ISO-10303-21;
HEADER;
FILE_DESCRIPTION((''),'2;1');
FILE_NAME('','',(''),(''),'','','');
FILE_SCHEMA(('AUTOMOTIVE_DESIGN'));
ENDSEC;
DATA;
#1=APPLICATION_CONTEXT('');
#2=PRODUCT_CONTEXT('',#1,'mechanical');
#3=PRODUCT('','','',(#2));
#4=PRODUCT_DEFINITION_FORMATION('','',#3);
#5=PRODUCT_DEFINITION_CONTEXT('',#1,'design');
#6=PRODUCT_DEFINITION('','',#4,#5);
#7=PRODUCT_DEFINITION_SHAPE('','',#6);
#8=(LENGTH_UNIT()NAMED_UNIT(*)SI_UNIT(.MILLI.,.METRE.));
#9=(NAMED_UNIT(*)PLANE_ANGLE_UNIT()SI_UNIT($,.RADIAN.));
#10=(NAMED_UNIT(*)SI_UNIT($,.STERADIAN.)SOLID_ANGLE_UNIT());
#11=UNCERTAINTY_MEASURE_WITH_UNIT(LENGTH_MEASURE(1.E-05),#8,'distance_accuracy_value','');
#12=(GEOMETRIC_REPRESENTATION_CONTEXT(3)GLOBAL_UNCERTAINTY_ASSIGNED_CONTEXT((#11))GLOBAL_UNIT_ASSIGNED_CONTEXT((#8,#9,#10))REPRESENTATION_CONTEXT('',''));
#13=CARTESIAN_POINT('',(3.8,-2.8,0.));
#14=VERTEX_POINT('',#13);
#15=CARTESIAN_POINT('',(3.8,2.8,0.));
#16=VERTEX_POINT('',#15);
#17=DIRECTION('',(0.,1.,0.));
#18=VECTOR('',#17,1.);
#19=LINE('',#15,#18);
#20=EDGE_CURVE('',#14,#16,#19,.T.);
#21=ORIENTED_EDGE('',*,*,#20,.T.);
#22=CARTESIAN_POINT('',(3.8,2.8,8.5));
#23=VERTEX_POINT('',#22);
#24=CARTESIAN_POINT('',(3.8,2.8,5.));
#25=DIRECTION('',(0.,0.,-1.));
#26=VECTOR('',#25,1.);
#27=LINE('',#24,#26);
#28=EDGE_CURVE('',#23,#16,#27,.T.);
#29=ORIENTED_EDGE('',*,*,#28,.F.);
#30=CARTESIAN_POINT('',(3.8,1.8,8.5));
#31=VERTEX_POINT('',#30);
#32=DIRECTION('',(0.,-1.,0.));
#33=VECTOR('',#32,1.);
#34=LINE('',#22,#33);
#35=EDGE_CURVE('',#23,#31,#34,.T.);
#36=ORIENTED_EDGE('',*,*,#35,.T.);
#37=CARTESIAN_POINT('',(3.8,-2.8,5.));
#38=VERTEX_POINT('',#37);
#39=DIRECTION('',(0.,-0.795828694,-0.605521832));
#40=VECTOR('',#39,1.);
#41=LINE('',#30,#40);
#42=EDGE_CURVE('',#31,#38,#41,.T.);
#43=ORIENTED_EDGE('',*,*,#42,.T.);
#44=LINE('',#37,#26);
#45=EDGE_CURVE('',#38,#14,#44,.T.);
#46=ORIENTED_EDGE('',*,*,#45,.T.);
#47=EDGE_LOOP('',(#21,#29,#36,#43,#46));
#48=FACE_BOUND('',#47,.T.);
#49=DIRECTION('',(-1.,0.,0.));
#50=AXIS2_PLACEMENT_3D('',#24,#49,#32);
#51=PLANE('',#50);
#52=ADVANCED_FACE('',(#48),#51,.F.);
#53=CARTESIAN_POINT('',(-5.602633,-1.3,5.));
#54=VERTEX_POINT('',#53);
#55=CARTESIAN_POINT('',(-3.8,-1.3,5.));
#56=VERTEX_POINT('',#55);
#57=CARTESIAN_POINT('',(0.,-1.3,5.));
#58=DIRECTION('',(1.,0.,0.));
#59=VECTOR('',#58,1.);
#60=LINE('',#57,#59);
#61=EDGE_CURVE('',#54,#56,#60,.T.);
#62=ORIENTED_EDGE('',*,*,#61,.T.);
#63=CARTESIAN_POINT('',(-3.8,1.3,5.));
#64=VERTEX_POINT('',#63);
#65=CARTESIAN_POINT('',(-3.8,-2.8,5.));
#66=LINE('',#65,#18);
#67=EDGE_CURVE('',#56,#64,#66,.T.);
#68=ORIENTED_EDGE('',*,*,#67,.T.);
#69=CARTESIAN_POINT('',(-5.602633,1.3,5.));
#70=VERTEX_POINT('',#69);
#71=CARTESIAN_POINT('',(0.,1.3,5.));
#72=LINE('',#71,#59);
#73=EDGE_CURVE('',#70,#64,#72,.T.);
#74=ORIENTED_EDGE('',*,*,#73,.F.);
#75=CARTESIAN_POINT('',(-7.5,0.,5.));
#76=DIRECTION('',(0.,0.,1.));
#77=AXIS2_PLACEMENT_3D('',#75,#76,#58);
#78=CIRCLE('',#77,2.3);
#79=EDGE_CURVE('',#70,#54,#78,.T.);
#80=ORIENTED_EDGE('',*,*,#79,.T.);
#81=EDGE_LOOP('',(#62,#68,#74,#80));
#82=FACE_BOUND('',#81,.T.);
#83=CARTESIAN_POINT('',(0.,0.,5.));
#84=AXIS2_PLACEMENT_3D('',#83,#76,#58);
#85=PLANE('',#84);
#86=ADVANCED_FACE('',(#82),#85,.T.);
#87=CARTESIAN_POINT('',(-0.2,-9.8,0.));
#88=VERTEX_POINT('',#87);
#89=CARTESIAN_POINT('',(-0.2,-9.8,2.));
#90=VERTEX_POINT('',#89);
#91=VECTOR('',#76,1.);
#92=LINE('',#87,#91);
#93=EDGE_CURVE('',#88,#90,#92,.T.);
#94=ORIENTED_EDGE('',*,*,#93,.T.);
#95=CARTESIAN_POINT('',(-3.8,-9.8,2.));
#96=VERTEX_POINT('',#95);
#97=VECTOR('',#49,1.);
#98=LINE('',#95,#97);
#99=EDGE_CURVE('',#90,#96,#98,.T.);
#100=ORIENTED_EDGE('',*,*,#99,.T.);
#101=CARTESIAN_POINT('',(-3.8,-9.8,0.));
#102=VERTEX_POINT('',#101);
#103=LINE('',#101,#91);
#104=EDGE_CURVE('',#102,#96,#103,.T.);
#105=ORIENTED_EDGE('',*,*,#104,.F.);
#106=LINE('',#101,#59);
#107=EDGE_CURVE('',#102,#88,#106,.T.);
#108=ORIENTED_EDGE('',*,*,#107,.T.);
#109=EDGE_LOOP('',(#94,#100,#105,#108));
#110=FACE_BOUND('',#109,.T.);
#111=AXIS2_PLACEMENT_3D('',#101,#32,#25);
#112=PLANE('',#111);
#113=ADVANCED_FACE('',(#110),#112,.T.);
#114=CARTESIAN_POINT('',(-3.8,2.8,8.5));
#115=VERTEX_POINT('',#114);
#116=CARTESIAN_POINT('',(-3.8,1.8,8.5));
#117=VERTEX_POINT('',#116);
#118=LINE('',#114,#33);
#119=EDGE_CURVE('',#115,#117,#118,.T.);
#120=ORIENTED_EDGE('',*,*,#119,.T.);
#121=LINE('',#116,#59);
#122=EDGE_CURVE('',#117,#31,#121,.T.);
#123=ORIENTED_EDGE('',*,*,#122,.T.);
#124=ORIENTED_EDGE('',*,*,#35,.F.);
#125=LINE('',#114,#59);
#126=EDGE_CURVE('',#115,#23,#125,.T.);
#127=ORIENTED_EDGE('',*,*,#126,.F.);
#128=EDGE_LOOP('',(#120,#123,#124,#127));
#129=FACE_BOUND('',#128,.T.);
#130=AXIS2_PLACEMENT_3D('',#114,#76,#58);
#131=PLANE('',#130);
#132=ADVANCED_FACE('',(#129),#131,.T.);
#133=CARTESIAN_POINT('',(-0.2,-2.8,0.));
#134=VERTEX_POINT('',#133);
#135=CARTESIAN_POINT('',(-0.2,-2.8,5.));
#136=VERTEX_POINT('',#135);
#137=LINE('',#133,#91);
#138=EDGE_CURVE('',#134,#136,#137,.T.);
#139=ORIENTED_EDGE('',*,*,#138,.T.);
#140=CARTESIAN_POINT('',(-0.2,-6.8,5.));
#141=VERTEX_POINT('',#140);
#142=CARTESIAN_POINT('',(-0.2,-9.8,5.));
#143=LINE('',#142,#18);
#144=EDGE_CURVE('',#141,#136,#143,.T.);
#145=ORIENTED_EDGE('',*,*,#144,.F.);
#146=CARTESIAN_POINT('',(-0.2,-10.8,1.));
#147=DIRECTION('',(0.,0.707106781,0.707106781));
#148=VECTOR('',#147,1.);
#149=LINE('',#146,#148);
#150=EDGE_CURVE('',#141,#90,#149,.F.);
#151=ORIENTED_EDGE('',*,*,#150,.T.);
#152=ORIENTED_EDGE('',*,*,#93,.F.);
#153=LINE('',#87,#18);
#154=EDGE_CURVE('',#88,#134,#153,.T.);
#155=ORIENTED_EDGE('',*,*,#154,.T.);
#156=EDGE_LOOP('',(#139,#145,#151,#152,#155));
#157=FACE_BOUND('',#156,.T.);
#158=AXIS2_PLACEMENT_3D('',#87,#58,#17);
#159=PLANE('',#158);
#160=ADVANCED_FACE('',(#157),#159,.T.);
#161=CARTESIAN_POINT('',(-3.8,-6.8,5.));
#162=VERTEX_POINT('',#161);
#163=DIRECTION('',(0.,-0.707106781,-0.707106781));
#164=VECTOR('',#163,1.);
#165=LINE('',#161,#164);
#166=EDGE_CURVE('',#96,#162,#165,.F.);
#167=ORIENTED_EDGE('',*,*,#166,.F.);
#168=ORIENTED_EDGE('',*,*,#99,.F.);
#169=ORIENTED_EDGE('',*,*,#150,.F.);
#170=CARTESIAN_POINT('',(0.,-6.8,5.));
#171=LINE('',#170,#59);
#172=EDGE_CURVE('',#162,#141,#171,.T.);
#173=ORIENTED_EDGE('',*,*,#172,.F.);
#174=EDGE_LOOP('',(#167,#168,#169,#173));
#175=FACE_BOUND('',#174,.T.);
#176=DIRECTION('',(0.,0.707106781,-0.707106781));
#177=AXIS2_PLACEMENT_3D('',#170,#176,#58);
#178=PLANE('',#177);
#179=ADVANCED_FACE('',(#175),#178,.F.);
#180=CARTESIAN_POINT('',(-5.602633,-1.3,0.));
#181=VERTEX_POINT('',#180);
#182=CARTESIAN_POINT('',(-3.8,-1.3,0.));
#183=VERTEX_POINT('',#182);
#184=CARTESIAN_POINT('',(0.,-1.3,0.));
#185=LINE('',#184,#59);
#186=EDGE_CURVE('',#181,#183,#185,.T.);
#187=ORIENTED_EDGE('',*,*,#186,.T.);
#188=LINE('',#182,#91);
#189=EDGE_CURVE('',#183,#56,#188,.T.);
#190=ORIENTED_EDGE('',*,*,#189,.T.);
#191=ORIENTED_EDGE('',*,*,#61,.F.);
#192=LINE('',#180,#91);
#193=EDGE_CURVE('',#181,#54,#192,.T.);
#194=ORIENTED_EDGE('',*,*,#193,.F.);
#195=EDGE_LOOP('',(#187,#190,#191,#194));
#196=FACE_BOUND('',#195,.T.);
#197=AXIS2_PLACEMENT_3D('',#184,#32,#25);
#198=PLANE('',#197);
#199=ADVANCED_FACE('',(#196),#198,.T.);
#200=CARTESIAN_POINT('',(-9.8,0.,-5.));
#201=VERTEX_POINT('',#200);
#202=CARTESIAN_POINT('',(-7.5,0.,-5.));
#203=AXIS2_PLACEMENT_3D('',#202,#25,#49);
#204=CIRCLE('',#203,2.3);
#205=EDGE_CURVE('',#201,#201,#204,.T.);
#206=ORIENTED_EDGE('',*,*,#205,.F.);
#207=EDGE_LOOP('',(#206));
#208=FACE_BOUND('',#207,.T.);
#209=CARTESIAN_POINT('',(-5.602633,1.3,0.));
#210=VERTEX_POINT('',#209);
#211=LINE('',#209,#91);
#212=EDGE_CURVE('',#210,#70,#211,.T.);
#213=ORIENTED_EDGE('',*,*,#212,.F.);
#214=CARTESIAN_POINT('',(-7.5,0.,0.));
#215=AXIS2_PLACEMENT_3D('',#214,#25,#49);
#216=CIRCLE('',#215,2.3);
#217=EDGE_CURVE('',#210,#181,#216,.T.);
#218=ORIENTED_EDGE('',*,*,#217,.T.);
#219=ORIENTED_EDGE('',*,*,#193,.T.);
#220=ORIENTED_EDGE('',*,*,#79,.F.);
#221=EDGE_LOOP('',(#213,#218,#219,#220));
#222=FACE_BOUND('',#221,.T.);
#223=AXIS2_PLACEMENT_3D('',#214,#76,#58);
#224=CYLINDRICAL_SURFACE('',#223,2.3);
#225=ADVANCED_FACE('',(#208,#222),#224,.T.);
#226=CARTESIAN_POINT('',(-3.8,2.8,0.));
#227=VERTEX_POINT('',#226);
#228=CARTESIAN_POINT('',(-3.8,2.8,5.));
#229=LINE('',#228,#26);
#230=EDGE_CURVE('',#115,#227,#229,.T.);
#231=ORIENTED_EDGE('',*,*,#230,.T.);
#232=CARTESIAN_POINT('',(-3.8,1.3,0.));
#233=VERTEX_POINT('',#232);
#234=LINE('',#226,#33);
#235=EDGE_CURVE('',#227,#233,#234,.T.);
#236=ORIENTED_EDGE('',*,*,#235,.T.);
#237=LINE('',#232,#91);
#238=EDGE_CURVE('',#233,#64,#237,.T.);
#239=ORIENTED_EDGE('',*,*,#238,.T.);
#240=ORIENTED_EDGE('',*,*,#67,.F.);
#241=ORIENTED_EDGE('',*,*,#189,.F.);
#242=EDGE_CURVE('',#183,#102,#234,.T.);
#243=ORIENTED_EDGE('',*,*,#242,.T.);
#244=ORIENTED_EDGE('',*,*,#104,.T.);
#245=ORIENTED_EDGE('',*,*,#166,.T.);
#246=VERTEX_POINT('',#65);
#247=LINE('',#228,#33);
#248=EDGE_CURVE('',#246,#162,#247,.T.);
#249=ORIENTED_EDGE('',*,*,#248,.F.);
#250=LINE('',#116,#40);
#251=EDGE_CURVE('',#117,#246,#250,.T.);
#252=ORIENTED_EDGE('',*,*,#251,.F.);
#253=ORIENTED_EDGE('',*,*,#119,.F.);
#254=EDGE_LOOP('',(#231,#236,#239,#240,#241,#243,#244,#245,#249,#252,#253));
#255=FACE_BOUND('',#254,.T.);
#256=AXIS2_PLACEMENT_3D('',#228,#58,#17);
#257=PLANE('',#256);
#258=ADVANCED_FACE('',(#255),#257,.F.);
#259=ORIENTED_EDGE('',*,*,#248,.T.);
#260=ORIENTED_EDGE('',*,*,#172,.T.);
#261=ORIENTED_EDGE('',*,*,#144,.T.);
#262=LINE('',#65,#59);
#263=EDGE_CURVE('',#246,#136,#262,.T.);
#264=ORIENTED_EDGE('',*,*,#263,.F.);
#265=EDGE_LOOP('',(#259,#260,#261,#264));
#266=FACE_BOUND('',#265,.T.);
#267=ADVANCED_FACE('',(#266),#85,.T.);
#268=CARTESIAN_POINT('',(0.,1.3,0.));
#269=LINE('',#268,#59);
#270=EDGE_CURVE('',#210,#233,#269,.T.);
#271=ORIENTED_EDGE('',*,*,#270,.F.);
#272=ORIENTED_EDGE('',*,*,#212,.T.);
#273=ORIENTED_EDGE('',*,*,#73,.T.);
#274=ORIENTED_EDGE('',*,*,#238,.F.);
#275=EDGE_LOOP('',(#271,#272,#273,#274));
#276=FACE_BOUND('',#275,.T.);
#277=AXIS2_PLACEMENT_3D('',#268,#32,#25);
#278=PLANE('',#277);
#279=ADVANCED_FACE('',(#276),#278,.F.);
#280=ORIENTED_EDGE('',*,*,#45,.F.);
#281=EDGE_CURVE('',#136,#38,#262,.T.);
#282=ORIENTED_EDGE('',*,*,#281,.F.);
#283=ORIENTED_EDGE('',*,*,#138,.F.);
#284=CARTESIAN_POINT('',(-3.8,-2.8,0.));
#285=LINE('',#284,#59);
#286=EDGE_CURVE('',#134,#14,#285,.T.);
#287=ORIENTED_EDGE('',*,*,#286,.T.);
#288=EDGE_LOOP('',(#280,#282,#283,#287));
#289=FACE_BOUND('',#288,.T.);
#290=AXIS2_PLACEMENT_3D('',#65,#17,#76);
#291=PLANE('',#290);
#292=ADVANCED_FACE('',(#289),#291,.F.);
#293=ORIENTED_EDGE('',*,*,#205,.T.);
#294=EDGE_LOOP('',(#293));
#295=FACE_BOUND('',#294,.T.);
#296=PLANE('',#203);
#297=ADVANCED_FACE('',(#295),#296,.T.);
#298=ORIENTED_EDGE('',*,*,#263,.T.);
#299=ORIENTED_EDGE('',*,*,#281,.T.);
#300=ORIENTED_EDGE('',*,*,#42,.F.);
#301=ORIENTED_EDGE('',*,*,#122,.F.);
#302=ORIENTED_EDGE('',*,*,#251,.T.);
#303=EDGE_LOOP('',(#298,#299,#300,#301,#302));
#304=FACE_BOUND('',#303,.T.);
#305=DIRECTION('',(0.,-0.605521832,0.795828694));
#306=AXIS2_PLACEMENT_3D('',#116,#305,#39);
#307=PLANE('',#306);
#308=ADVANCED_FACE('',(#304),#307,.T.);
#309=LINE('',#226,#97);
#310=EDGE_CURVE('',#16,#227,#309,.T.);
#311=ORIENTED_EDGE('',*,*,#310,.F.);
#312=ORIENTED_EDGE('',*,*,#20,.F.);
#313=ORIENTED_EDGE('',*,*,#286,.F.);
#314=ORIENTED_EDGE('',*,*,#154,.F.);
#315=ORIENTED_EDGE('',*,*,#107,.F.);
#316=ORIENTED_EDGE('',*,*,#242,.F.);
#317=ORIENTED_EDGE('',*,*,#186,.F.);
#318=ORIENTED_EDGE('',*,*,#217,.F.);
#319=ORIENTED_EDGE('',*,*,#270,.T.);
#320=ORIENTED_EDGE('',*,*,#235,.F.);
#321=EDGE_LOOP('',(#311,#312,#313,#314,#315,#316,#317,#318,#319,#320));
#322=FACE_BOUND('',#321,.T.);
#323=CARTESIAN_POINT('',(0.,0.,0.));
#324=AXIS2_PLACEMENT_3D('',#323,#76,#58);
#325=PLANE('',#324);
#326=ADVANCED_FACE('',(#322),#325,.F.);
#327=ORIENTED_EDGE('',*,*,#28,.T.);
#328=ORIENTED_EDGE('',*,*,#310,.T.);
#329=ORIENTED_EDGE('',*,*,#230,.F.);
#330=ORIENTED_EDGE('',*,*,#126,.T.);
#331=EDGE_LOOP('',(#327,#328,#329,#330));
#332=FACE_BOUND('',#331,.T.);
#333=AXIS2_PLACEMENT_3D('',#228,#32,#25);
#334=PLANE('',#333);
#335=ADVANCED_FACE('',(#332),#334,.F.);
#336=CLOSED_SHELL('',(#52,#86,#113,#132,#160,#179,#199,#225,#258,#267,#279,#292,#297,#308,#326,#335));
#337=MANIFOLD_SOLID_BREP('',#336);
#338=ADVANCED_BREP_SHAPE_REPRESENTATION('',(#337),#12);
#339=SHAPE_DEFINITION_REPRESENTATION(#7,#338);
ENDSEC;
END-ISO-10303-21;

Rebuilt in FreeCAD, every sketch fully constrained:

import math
import FreeCAD as App
import Part
import Sketcher

V = App.Vector
Q = App.Units.Quantity


def edges_at(feature, points):
    """Names of the edges that pass closest to the given points."""
    edges = feature.Shape.Edges
    near = lambda p: min(range(len(edges)), key=lambda i: edges[i].distToShape(Part.Vertex(*p))[0])
    return sorted({f"Edge{near(p) + 1}" for p in points})


def add_polygon(sketch, points):
    """Adds a closed chain of lines whose ends are joined by coincident constraints."""
    first, n = sketch.GeometryCount, len(points)
    for a, b in zip(points, points[1:] + points[:1]):
        sketch.addGeometry(Part.LineSegment(App.Vector(*a, 0), App.Vector(*b, 0)), False)
    for i in range(n):
        sketch.addConstraint(Sketcher.Constraint("Coincident", first + i, 2, first + (i + 1) % n, 1))

doc = App.newDocument("Part")
body = doc.addObject("PartDesign::Body", "Body")

# Sketch on XY plane
sketch1 = doc.addObject("Sketcher::SketchObject", "Sketch")
body.addObject(sketch1)
sketch1.AttachmentSupport = (doc.XY_Plane, [""])
sketch1.MapMode = "FlatFace"
add_polygon(sketch1, [(-4, 3), (-4, -3), (4, -3), (4, 3)])  # lines 0-3
sketch1.addConstraint(Sketcher.Constraint("Vertical", 0))
sketch1.addConstraint(Sketcher.Constraint("Horizontal", 1))
sketch1.addConstraint(Sketcher.Constraint("Vertical", 2))
sketch1.addConstraint(Sketcher.Constraint("Horizontal", 3))
sketch1.addConstraint(Sketcher.Constraint("Symmetric", 0, 2, 2, 2, -1, 1))
sketch1.addConstraint(Sketcher.Constraint("DistanceX", 1, 1, 1, 2, Q("7.6 mm")))
sketch1.addConstraint(Sketcher.Constraint("DistanceY", 0, 2, 0, 1, Q("5.6 mm")))
pad1 = doc.addObject("PartDesign::Pad", "Pad")
body.addObject(pad1)
pad1.Profile = sketch1
pad1.Length = 5

# Sketch on XY plane
sketch2 = doc.addObject("Sketcher::SketchObject", "Sketch001")
body.addObject(sketch2)
sketch2.AttachmentSupport = (doc.XY_Plane, [""])
sketch2.MapMode = "FlatFace"
sketch2.AttachmentOffset = App.Placement(V(0, 0, 5), App.Rotation())
sketch2.addGeometry(Part.ArcOfCircle(Part.Circle(V(-7.5, 0, 0), V(0, 0, 1), 2.3), math.radians(34), math.radians(326)), False)
sketch2.addGeometry(Part.LineSegment(V(-5.6, -1.3, 0), V(-3.8, -1.3, 0)), False)
sketch2.addGeometry(Part.LineSegment(V(-3.8, -1.3, 0), V(-3.8, 1.3, 0)), False)
sketch2.addGeometry(Part.LineSegment(V(-3.8, 1.3, 0), V(-5.6, 1.3, 0)), False)
sketch2.addConstraint(Sketcher.Constraint("Coincident", 0, 2, 1, 1))
sketch2.addConstraint(Sketcher.Constraint("Coincident", 1, 2, 2, 1))
sketch2.addConstraint(Sketcher.Constraint("Coincident", 2, 2, 3, 1))
sketch2.addConstraint(Sketcher.Constraint("Coincident", 3, 2, 0, 1))
sketch2.addConstraint(Sketcher.Constraint("Horizontal", 1))
sketch2.addConstraint(Sketcher.Constraint("Vertical", 2))
sketch2.addConstraint(Sketcher.Constraint("Horizontal", 3))
sketch2.addConstraint(Sketcher.Constraint("Symmetric", 0, 2, 3, 2, -1))
sketch2.addConstraint(Sketcher.Constraint("Radius", 0, Q("2.3 mm")))
sketch2.addConstraint(Sketcher.Constraint("DistanceY", 2, 1, 2, 2, Q("2.6 mm")))
sketch2.addConstraint(Sketcher.Constraint("DistanceX", 0, 3, -1, 1, Q("7.5 mm")))
sketch2.addConstraint(Sketcher.Constraint("DistanceX", 1, 2, -1, 1, Q("3.8 mm")))
pad2 = doc.addObject("PartDesign::Pad", "Pad001")
body.addObject(pad2)
pad2.Profile = sketch2
pad2.Length = 5
pad2.Reversed = True

# Sketch on XY plane
sketch3 = doc.addObject("Sketcher::SketchObject", "Sketch002")
body.addObject(sketch3)
sketch3.AttachmentSupport = (doc.XY_Plane, [""])
sketch3.MapMode = "FlatFace"
sketch3.AttachmentOffset = App.Placement(V(0, 0, 5), App.Rotation())
add_polygon(sketch3, [(-3.8, -2.8), (-3.8, -9.8), (-0.2, -9.8), (-0.2, -2.8)])  # lines 0-3
sketch3.addConstraint(Sketcher.Constraint("Vertical", 0))
sketch3.addConstraint(Sketcher.Constraint("Horizontal", 1))
sketch3.addConstraint(Sketcher.Constraint("Vertical", 2))
sketch3.addConstraint(Sketcher.Constraint("Horizontal", 3))
sketch3.addConstraint(Sketcher.Constraint("DistanceY", 0, 2, 0, 1, Q("7 mm")))
sketch3.addConstraint(Sketcher.Constraint("DistanceX", 1, 1, 1, 2, Q("3.6 mm")))
sketch3.addConstraint(Sketcher.Constraint("DistanceX", 0, 2, -1, 1, Q("3.8 mm")))
sketch3.addConstraint(Sketcher.Constraint("DistanceY", 0, 2, -1, 1, Q("9.8 mm")))
pad3 = doc.addObject("PartDesign::Pad", "Pad002")
body.addObject(pad3)
pad3.Profile = sketch3
pad3.Length = 5
pad3.Reversed = True

# Sketch on XY plane
sketch4 = doc.addObject("Sketcher::SketchObject", "Sketch003")
body.addObject(sketch4)
sketch4.AttachmentSupport = (doc.XY_Plane, [""])
sketch4.MapMode = "FlatFace"
sketch4.addGeometry(Part.Circle(V(-7.5, 0, 0), V(0, 0, 1), 2.3), False)
sketch4.addConstraint(Sketcher.Constraint("PointOnObject", 0, 3, -1))
sketch4.addConstraint(Sketcher.Constraint("Diameter", 0, Q("4.6 mm")))
sketch4.addConstraint(Sketcher.Constraint("DistanceX", 0, 3, -1, 1, Q("7.5 mm")))
pad4 = doc.addObject("PartDesign::Pad", "Pad003")
body.addObject(pad4)
pad4.Profile = sketch4
pad4.Length = 5
pad4.Reversed = True
doc.recompute()

chamfer = doc.addObject("PartDesign::Chamfer", "Chamfer")
body.addObject(chamfer)
chamfer.Base = (pad4, edges_at(pad4, [(-2, -9.8, 5)]))
chamfer.Size = 3

# Sketch on YZ plane
sketch5 = doc.addObject("Sketcher::SketchObject", "Sketch004")
body.addObject(sketch5)
sketch5.AttachmentSupport = (doc.YZ_Plane, [""])
sketch5.MapMode = "FlatFace"
sketch5.AttachmentOffset = App.Placement(V(0, 0, 3.8), App.Rotation())
add_polygon(sketch5, [(2.8, 5), (2.8, 8.5), (1.8, 8.5), (-2.8, 5)])  # lines 0-3
sketch5.addConstraint(Sketcher.Constraint("Vertical", 0))
sketch5.addConstraint(Sketcher.Constraint("Horizontal", 1))
sketch5.addConstraint(Sketcher.Constraint("Horizontal", 3))
sketch5.addConstraint(Sketcher.Constraint("DistanceX", 1, 2, 1, 1, Q("1 mm")))
sketch5.addConstraint(Sketcher.Constraint("DistanceX", 3, 1, 3, 2, Q("5.6 mm")))
sketch5.addConstraint(Sketcher.Constraint("DistanceY", 0, 1, 0, 2, Q("3.5 mm")))
sketch5.addConstraint(Sketcher.Constraint("DistanceY", -1, 1, 2, 2, Q("5 mm")))
sketch5.addConstraint(Sketcher.Constraint("DistanceX", -1, 1, 0, 2, Q("2.8 mm")))
pad5 = doc.addObject("PartDesign::Pad", "Pad004")
body.addObject(pad5)
pad5.Profile = sketch5
pad5.Length = 7.6
pad5.Reversed = True

doc.recompute()
